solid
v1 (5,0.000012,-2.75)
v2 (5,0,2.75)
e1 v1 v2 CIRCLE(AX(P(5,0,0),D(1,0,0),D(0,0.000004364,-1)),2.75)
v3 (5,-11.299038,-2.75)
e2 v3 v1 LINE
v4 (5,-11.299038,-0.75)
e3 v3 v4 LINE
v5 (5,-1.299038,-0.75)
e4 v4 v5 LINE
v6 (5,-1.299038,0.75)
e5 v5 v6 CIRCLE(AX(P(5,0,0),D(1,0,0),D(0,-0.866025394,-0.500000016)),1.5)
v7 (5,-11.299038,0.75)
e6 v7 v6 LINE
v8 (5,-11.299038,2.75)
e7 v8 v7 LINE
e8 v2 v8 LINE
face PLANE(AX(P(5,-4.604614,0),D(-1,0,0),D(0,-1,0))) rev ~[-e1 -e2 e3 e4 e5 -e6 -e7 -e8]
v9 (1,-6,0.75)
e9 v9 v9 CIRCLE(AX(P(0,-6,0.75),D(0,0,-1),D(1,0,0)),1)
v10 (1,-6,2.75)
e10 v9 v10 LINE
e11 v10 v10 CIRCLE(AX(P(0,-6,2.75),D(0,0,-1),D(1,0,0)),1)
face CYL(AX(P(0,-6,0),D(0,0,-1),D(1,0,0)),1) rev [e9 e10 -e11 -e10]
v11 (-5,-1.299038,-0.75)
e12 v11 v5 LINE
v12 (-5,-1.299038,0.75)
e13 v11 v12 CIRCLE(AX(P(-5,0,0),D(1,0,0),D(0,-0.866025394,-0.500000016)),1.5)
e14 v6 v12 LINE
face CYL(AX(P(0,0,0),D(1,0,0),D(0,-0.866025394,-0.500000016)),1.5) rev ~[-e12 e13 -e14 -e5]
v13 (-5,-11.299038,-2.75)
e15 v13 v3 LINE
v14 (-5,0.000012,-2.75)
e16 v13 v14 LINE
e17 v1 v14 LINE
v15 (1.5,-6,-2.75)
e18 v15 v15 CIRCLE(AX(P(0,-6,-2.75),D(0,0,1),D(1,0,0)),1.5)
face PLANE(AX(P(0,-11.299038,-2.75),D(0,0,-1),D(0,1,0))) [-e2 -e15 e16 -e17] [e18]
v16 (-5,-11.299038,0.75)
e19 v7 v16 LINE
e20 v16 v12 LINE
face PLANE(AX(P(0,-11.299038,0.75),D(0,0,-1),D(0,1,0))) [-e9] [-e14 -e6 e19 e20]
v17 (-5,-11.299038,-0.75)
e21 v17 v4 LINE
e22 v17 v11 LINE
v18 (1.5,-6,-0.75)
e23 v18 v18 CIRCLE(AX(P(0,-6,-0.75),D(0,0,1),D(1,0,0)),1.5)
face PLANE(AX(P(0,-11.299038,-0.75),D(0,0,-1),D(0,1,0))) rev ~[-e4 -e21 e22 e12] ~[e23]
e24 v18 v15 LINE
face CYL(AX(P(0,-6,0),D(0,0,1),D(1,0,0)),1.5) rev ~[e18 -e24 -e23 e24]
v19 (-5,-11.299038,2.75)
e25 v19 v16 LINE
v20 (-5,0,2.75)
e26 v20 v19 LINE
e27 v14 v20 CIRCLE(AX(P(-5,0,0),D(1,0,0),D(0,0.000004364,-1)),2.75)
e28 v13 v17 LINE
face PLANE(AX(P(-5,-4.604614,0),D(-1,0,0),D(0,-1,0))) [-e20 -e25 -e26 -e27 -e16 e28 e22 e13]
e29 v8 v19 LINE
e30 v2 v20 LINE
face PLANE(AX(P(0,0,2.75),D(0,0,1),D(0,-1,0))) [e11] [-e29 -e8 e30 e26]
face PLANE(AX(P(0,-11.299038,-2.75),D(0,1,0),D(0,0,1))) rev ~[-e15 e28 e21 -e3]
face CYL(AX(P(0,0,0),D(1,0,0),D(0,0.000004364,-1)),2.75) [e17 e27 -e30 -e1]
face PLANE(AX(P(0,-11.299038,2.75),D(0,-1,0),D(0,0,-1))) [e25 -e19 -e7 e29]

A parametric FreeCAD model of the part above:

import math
import FreeCAD as App
import Part
import Sketcher

V = App.Vector

doc = App.newDocument("Part")
body = doc.addObject("PartDesign::Body", "Body")

# Sketch on YZ plane
sketch1 = doc.addObject("Sketcher::SketchObject", "Sketch")
body.addObject(sketch1)
sketch1.AttachmentSupport = (doc.YZ_Plane, [""])
sketch1.MapMode = "FlatFace"
sketch1.addGeometry([
    Part.ArcOfCircle(Part.Circle(V(0, 0, 0), V(0, 0, 1), 1.5), math.radians(-150), math.radians(150)),  # 0
    Part.LineSegment(V(-1.3, -0.8, 0), V(-11.3, -0.8, 0)),  # 1
    Part.LineSegment(V(-11.3, -0.8, 0), V(-11.3, -2.8, 0)),  # 2
    Part.LineSegment(V(-11.3, -2.8, 0), V(0, -2.8, 0)),  # 3
    Part.ArcOfCircle(Part.Circle(V(0, 0, 0), V(0, 0, 1), 2.8), math.radians(-90), math.radians(90)),  # 4
    Part.LineSegment(V(0, 2.8, 0), V(-11.3, 2.8, 0)),  # 5
    Part.LineSegment(V(-11.3, 2.8, 0), V(-11.3, 0.8, 0)),  # 6
    Part.LineSegment(V(-11.3, 0.8, 0), V(-1.3, 0.8, 0)),  # 7
], False)
sketch1.addConstraint([
    Sketcher.Constraint("Coincident", 0, 1, 1, 1),
    Sketcher.Constraint("Coincident", 1, 2, 2, 1),
    Sketcher.Constraint("Coincident", 2, 2, 3, 1),
    Sketcher.Constraint("Coincident", 3, 2, 4, 1),
    Sketcher.Constraint("Tangent", 4, 2, 5, 1),
    Sketcher.Constraint("Coincident", 5, 2, 6, 1),
    Sketcher.Constraint("Coincident", 6, 2, 7, 1),
    Sketcher.Constraint("Coincident", 7, 2, 0, 2),
    Sketcher.Constraint("Horizontal", 1),
    Sketcher.Constraint("Vertical", 2),
    Sketcher.Constraint("Horizontal", 3),
    Sketcher.Constraint("Horizontal", 5),
    Sketcher.Constraint("Vertical", 6),
    Sketcher.Constraint("Horizontal", 7),
    Sketcher.Constraint("Coincident", 0, 3, -1, 1),
    Sketcher.Constraint("Coincident", 4, 3, -1, 1),
    Sketcher.Constraint("Symmetric", 1, 2, 6, 2, -1),
    Sketcher.Constraint("Radius", 0, 1.5),
    Sketcher.Constraint("DistanceX", 1, 2, 1, 1, 10.0),
    Sketcher.Constraint("DistanceY", 2, 2, 2, 1, 2.0),
    Sketcher.Constraint("Radius", 4, 2.75),
    Sketcher.Constraint("DistanceX", 3, 1, 3, 2, 11.29905),
])
pad1 = doc.addObject("PartDesign::Pad", "Pad")
body.addObject(pad1)
pad1.Profile = sketch1
pad1.Length = 10
pad1.Midplane = True

# Sketch on XY plane
sketch2 = doc.addObject("Sketcher::SketchObject", "Sketch001")
body.addObject(sketch2)
sketch2.AttachmentSupport = (doc.XY_Plane, [""])
sketch2.MapMode = "FlatFace"
sketch2.addGeometry(Part.Circle(V(0, -6, 0), V(0, 0, 1), 1.5), False)
sketch2.addConstraint([
    Sketcher.Constraint("PointOnObject", 0, 3, -2),
    Sketcher.Constraint("Diameter", 0, 3.0),
    Sketcher.Constraint("DistanceY", 0, 3, -1, 1, 6.0),
])
pocket1 = doc.addObject("PartDesign::Pocket", "Pocket")
body.addObject(pocket1)
pocket1.Profile = sketch2
pocket1.Type = "ThroughAll"

# Sketch on XY plane
sketch3 = doc.addObject("Sketcher::SketchObject", "Sketch002")
body.addObject(sketch3)
sketch3.AttachmentSupport = (doc.XY_Plane, [""])
sketch3.MapMode = "FlatFace"
sketch3.addGeometry(Part.Circle(V(0, -6, 0), V(0, 0, 1), 1), False)
sketch3.addConstraint([
    Sketcher.Constraint("PointOnObject", 0, 3, -2),
    Sketcher.Constraint("Diameter", 0, 2.0),
    Sketcher.Constraint("DistanceY", 0, 3, -1, 1, 6.0),
])
pocket2 = doc.addObject("PartDesign::Pocket", "Pocket001")
body.addObject(pocket2)
pocket2.Profile = sketch3
pocket2.Length = 5
pocket2.Reversed = True

doc.recompute()
